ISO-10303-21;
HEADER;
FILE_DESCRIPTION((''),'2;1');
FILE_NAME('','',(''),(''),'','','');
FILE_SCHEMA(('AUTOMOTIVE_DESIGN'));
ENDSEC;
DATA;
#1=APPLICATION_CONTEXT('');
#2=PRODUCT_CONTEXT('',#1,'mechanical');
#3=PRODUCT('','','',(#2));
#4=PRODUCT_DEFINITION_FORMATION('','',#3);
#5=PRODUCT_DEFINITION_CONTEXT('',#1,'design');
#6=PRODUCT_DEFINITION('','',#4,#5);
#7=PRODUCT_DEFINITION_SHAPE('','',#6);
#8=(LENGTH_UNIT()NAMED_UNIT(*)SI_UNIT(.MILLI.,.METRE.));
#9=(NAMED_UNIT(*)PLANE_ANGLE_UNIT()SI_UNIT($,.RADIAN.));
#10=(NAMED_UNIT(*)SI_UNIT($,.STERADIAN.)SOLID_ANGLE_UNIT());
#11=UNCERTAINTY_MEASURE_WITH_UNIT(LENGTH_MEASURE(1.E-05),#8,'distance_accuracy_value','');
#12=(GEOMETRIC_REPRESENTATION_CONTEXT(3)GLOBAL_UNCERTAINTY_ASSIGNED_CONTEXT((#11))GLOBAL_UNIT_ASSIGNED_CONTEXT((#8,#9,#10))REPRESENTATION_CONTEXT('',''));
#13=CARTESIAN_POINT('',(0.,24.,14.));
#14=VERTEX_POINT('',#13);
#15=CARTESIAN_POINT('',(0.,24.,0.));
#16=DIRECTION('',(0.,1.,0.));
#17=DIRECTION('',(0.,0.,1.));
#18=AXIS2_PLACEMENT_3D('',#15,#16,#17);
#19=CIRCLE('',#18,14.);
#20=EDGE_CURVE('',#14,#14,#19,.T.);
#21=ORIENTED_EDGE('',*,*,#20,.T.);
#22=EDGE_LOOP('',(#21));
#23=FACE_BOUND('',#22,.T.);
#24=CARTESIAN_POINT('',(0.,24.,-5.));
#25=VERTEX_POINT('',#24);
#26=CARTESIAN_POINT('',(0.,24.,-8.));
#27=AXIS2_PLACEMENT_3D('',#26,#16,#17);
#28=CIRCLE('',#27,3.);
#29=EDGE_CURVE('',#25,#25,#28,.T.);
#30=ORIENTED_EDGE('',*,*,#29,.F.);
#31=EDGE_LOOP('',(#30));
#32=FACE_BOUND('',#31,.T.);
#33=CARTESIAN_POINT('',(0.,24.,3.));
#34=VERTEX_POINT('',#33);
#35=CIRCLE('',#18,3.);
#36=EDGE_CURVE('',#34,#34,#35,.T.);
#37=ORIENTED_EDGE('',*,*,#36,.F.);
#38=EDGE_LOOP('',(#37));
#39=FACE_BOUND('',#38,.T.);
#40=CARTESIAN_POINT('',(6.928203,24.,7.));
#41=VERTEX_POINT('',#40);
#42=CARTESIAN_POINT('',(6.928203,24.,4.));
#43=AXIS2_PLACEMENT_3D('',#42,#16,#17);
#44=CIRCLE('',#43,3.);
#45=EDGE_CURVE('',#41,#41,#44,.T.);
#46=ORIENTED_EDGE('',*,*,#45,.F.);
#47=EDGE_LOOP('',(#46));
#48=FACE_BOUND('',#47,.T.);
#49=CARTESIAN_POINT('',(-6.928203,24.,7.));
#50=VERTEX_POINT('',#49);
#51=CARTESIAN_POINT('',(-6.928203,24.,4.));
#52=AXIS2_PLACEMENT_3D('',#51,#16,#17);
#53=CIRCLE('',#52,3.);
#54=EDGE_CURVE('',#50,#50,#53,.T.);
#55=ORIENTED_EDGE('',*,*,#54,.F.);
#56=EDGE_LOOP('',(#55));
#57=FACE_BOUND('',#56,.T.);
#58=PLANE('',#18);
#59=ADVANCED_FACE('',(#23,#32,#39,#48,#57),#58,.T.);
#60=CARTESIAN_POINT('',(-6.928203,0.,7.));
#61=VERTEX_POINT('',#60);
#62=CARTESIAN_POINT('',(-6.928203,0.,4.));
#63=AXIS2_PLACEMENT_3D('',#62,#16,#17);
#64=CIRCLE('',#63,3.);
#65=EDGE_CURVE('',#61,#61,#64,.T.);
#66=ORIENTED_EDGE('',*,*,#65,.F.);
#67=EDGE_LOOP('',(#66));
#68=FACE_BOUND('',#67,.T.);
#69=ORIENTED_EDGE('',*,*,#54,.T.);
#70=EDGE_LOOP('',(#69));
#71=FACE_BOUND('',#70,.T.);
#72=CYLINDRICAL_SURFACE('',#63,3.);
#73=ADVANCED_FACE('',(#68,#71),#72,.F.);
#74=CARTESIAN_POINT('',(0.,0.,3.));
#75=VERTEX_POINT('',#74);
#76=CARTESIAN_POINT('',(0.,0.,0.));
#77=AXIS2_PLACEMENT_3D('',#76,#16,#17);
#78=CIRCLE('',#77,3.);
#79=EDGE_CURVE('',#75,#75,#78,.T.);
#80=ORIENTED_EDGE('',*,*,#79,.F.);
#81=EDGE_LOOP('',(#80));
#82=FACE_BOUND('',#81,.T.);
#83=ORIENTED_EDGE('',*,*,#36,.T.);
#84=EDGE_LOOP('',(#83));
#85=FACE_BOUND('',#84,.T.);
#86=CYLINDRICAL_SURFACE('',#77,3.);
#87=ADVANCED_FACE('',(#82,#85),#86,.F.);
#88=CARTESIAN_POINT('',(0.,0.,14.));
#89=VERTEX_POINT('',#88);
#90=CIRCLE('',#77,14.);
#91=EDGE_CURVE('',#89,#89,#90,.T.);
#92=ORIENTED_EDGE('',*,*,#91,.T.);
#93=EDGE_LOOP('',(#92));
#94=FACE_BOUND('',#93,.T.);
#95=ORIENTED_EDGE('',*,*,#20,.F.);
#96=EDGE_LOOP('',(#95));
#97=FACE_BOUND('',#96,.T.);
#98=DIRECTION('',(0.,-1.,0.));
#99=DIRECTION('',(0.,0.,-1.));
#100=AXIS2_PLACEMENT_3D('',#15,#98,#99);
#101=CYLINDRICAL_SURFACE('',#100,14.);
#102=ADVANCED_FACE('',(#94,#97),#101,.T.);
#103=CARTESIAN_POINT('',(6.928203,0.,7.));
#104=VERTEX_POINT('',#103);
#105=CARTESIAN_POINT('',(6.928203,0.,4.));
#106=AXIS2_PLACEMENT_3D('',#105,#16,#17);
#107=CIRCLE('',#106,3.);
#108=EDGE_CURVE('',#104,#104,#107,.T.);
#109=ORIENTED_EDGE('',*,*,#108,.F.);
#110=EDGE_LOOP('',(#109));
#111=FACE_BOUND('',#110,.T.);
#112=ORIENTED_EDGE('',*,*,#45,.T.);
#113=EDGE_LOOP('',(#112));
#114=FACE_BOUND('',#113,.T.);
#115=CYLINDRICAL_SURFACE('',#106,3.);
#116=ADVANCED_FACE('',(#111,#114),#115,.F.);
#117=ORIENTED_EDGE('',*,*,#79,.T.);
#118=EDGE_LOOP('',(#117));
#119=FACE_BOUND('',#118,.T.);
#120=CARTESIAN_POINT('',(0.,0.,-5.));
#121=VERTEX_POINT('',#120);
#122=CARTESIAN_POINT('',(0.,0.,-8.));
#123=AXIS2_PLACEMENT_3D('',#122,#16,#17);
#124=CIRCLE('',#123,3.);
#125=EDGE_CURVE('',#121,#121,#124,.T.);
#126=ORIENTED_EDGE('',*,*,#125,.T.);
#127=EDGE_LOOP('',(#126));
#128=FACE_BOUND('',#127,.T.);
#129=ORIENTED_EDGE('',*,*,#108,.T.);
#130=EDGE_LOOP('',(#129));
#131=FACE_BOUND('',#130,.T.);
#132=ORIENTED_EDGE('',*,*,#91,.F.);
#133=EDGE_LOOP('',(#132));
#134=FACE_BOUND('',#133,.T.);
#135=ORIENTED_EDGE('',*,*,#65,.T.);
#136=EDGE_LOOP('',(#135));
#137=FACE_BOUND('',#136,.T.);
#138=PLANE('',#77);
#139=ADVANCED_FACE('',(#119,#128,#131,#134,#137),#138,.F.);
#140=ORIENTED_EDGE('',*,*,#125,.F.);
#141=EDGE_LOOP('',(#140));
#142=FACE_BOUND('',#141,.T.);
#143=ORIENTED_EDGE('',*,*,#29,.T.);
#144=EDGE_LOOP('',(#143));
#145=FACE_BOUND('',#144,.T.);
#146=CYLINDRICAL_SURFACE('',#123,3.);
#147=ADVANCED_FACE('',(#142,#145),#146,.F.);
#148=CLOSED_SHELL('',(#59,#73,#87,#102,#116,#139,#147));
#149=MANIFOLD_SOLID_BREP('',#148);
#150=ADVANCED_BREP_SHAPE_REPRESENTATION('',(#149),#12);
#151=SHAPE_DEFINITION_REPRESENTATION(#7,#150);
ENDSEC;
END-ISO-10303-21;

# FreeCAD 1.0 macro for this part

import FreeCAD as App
import Part
import Sketcher

V = App.Vector
Q = App.Units.Quantity

doc = App.newDocument("Part")
body = doc.addObject("PartDesign::Body", "Body")

# Sketch on XZ plane
sketch1 = body.newObject("Sketcher::SketchObject", "Sketch")
sketch1.AttachmentSupport = (doc.getObject("XZ_Plane"), [""])
sketch1.MapMode = "FlatFace"
sketch1.addGeometry(Part.Circle(V(0, 0, 0), V(0, 0, 1), 14), False)
sketch1.addConstraint([
    Sketcher.Constraint("Coincident", 0, 3, -1, 1),
    Sketcher.Constraint("Diameter", 0, Q("28 mm")),
])
pad1 = body.newObject("PartDesign::Pad", "Pad")
pad1.Profile = sketch1
pad1.Length = 24
pad1.Reversed = True

# Sketch on XZ plane
sketch2 = body.newObject("Sketcher::SketchObject", "Sketch001")
sketch2.AttachmentSupport = (doc.getObject("XZ_Plane"), [""])
sketch2.MapMode = "FlatFace"
sketch2.AttachmentOffset = App.Placement(V(0, 0, -24), App.Rotation())
sketch2.addGeometry([
    Part.Circle(V(0, -8, 0), V(0, 0, 1), 3),
    Part.Circle(V(-6.928203, 4, 0), V(0, 0, 1), 3),
    Part.Circle(V(0, 0, 0), V(0, 0, 1), 3),
    Part.Circle(V(6.928203, 4, 0), V(0, 0, 1), 3),
], False)
sketch2.addConstraint([
    Sketcher.Constraint("Coincident", 2, 3, -1, 1),
    Sketcher.Constraint("Equal", 0, 1),
    Sketcher.Constraint("Equal", 1, 2),
    Sketcher.Constraint("Equal", 2, 3),
    Sketcher.Constraint("Symmetric", 1, 3, 3, 3, -2),
    Sketcher.Constraint("PointOnObject", 0, 3, -2),
    Sketcher.Constraint("Diameter", 0, Q("6 mm")),
    Sketcher.Constraint("DistanceY", 0, 3, -1, 1, Q("8 mm")),
    Sketcher.Constraint("DistanceY", -1, 1, 1, 3, Q("4 mm")),
    Sketcher.Constraint("DistanceX", 1, 3, -1, 1, Q("6.928203 mm")),
])
pocket1 = body.newObject("PartDesign::Pocket", "Pocket")
pocket1.Profile = sketch2
pocket1.Type = "ThroughAll"
pocket1.Reversed = True

doc.recompute()
